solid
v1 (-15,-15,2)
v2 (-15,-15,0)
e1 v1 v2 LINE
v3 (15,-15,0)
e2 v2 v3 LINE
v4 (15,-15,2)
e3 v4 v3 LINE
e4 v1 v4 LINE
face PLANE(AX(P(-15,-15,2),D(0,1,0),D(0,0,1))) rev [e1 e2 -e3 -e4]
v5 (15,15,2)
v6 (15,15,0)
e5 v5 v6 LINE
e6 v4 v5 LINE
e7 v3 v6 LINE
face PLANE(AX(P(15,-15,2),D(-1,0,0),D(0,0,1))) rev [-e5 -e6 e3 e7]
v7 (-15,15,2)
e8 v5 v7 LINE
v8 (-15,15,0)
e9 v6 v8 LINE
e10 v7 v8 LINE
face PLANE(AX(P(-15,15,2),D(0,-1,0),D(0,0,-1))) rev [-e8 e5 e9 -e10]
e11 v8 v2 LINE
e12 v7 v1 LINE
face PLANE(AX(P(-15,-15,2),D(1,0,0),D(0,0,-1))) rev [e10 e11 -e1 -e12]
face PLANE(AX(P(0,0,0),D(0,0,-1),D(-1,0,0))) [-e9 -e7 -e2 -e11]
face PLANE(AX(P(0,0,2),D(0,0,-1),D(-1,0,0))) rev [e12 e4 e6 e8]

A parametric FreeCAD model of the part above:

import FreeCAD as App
import Part
import Sketcher

V = App.Vector

doc = App.newDocument("Part")
body = doc.addObject("PartDesign::Body", "Body")

# Sketch on XY plane
sketch1 = doc.addObject("Sketcher::SketchObject", "Sketch")
body.addObject(sketch1)
sketch1.AttachmentSupport = (doc.XY_Plane, [""])
sketch1.MapMode = "FlatFace"
sketch1.addGeometry(Part.LineSegment(V(-15, 15, 0), V(-15, -15, 0)), False)
sketch1.addGeometry(Part.LineSegment(V(-15, -15, 0), V(15, -15, 0)), False)
sketch1.addGeometry(Part.LineSegment(V(15, -15, 0), V(15, 15, 0)), False)
sketch1.addGeometry(Part.LineSegment(V(15, 15, 0), V(-15, 15, 0)), False)
sketch1.addConstraint(Sketcher.Constraint("Coincident", 0, 2, 1, 1))
sketch1.addConstraint(Sketcher.Constraint("Coincident", 1, 2, 2, 1))
sketch1.addConstraint(Sketcher.Constraint("Coincident", 2, 2, 3, 1))
sketch1.addConstraint(Sketcher.Constraint("Coincident", 3, 2, 0, 1))
sketch1.addConstraint(Sketcher.Constraint("Vertical", 0))
sketch1.addConstraint(Sketcher.Constraint("Horizontal", 1))
sketch1.addConstraint(Sketcher.Constraint("Vertical", 2))
sketch1.addConstraint(Sketcher.Constraint("Horizontal", 3))
sketch1.addConstraint(Sketcher.Constraint("Symmetric", 0, 2, 2, 2, -1, 1))
sketch1.addConstraint(Sketcher.Constraint("Equal", 3, 0))
sketch1.addConstraint(Sketcher.Constraint("DistanceX", 1, 1, 1, 2, 30.0))
pad1 = doc.addObject("PartDesign::Pad", "Pad")
body.addObject(pad1)
pad1.Profile = sketch1
pad1.Length = 2

doc.recompute()
